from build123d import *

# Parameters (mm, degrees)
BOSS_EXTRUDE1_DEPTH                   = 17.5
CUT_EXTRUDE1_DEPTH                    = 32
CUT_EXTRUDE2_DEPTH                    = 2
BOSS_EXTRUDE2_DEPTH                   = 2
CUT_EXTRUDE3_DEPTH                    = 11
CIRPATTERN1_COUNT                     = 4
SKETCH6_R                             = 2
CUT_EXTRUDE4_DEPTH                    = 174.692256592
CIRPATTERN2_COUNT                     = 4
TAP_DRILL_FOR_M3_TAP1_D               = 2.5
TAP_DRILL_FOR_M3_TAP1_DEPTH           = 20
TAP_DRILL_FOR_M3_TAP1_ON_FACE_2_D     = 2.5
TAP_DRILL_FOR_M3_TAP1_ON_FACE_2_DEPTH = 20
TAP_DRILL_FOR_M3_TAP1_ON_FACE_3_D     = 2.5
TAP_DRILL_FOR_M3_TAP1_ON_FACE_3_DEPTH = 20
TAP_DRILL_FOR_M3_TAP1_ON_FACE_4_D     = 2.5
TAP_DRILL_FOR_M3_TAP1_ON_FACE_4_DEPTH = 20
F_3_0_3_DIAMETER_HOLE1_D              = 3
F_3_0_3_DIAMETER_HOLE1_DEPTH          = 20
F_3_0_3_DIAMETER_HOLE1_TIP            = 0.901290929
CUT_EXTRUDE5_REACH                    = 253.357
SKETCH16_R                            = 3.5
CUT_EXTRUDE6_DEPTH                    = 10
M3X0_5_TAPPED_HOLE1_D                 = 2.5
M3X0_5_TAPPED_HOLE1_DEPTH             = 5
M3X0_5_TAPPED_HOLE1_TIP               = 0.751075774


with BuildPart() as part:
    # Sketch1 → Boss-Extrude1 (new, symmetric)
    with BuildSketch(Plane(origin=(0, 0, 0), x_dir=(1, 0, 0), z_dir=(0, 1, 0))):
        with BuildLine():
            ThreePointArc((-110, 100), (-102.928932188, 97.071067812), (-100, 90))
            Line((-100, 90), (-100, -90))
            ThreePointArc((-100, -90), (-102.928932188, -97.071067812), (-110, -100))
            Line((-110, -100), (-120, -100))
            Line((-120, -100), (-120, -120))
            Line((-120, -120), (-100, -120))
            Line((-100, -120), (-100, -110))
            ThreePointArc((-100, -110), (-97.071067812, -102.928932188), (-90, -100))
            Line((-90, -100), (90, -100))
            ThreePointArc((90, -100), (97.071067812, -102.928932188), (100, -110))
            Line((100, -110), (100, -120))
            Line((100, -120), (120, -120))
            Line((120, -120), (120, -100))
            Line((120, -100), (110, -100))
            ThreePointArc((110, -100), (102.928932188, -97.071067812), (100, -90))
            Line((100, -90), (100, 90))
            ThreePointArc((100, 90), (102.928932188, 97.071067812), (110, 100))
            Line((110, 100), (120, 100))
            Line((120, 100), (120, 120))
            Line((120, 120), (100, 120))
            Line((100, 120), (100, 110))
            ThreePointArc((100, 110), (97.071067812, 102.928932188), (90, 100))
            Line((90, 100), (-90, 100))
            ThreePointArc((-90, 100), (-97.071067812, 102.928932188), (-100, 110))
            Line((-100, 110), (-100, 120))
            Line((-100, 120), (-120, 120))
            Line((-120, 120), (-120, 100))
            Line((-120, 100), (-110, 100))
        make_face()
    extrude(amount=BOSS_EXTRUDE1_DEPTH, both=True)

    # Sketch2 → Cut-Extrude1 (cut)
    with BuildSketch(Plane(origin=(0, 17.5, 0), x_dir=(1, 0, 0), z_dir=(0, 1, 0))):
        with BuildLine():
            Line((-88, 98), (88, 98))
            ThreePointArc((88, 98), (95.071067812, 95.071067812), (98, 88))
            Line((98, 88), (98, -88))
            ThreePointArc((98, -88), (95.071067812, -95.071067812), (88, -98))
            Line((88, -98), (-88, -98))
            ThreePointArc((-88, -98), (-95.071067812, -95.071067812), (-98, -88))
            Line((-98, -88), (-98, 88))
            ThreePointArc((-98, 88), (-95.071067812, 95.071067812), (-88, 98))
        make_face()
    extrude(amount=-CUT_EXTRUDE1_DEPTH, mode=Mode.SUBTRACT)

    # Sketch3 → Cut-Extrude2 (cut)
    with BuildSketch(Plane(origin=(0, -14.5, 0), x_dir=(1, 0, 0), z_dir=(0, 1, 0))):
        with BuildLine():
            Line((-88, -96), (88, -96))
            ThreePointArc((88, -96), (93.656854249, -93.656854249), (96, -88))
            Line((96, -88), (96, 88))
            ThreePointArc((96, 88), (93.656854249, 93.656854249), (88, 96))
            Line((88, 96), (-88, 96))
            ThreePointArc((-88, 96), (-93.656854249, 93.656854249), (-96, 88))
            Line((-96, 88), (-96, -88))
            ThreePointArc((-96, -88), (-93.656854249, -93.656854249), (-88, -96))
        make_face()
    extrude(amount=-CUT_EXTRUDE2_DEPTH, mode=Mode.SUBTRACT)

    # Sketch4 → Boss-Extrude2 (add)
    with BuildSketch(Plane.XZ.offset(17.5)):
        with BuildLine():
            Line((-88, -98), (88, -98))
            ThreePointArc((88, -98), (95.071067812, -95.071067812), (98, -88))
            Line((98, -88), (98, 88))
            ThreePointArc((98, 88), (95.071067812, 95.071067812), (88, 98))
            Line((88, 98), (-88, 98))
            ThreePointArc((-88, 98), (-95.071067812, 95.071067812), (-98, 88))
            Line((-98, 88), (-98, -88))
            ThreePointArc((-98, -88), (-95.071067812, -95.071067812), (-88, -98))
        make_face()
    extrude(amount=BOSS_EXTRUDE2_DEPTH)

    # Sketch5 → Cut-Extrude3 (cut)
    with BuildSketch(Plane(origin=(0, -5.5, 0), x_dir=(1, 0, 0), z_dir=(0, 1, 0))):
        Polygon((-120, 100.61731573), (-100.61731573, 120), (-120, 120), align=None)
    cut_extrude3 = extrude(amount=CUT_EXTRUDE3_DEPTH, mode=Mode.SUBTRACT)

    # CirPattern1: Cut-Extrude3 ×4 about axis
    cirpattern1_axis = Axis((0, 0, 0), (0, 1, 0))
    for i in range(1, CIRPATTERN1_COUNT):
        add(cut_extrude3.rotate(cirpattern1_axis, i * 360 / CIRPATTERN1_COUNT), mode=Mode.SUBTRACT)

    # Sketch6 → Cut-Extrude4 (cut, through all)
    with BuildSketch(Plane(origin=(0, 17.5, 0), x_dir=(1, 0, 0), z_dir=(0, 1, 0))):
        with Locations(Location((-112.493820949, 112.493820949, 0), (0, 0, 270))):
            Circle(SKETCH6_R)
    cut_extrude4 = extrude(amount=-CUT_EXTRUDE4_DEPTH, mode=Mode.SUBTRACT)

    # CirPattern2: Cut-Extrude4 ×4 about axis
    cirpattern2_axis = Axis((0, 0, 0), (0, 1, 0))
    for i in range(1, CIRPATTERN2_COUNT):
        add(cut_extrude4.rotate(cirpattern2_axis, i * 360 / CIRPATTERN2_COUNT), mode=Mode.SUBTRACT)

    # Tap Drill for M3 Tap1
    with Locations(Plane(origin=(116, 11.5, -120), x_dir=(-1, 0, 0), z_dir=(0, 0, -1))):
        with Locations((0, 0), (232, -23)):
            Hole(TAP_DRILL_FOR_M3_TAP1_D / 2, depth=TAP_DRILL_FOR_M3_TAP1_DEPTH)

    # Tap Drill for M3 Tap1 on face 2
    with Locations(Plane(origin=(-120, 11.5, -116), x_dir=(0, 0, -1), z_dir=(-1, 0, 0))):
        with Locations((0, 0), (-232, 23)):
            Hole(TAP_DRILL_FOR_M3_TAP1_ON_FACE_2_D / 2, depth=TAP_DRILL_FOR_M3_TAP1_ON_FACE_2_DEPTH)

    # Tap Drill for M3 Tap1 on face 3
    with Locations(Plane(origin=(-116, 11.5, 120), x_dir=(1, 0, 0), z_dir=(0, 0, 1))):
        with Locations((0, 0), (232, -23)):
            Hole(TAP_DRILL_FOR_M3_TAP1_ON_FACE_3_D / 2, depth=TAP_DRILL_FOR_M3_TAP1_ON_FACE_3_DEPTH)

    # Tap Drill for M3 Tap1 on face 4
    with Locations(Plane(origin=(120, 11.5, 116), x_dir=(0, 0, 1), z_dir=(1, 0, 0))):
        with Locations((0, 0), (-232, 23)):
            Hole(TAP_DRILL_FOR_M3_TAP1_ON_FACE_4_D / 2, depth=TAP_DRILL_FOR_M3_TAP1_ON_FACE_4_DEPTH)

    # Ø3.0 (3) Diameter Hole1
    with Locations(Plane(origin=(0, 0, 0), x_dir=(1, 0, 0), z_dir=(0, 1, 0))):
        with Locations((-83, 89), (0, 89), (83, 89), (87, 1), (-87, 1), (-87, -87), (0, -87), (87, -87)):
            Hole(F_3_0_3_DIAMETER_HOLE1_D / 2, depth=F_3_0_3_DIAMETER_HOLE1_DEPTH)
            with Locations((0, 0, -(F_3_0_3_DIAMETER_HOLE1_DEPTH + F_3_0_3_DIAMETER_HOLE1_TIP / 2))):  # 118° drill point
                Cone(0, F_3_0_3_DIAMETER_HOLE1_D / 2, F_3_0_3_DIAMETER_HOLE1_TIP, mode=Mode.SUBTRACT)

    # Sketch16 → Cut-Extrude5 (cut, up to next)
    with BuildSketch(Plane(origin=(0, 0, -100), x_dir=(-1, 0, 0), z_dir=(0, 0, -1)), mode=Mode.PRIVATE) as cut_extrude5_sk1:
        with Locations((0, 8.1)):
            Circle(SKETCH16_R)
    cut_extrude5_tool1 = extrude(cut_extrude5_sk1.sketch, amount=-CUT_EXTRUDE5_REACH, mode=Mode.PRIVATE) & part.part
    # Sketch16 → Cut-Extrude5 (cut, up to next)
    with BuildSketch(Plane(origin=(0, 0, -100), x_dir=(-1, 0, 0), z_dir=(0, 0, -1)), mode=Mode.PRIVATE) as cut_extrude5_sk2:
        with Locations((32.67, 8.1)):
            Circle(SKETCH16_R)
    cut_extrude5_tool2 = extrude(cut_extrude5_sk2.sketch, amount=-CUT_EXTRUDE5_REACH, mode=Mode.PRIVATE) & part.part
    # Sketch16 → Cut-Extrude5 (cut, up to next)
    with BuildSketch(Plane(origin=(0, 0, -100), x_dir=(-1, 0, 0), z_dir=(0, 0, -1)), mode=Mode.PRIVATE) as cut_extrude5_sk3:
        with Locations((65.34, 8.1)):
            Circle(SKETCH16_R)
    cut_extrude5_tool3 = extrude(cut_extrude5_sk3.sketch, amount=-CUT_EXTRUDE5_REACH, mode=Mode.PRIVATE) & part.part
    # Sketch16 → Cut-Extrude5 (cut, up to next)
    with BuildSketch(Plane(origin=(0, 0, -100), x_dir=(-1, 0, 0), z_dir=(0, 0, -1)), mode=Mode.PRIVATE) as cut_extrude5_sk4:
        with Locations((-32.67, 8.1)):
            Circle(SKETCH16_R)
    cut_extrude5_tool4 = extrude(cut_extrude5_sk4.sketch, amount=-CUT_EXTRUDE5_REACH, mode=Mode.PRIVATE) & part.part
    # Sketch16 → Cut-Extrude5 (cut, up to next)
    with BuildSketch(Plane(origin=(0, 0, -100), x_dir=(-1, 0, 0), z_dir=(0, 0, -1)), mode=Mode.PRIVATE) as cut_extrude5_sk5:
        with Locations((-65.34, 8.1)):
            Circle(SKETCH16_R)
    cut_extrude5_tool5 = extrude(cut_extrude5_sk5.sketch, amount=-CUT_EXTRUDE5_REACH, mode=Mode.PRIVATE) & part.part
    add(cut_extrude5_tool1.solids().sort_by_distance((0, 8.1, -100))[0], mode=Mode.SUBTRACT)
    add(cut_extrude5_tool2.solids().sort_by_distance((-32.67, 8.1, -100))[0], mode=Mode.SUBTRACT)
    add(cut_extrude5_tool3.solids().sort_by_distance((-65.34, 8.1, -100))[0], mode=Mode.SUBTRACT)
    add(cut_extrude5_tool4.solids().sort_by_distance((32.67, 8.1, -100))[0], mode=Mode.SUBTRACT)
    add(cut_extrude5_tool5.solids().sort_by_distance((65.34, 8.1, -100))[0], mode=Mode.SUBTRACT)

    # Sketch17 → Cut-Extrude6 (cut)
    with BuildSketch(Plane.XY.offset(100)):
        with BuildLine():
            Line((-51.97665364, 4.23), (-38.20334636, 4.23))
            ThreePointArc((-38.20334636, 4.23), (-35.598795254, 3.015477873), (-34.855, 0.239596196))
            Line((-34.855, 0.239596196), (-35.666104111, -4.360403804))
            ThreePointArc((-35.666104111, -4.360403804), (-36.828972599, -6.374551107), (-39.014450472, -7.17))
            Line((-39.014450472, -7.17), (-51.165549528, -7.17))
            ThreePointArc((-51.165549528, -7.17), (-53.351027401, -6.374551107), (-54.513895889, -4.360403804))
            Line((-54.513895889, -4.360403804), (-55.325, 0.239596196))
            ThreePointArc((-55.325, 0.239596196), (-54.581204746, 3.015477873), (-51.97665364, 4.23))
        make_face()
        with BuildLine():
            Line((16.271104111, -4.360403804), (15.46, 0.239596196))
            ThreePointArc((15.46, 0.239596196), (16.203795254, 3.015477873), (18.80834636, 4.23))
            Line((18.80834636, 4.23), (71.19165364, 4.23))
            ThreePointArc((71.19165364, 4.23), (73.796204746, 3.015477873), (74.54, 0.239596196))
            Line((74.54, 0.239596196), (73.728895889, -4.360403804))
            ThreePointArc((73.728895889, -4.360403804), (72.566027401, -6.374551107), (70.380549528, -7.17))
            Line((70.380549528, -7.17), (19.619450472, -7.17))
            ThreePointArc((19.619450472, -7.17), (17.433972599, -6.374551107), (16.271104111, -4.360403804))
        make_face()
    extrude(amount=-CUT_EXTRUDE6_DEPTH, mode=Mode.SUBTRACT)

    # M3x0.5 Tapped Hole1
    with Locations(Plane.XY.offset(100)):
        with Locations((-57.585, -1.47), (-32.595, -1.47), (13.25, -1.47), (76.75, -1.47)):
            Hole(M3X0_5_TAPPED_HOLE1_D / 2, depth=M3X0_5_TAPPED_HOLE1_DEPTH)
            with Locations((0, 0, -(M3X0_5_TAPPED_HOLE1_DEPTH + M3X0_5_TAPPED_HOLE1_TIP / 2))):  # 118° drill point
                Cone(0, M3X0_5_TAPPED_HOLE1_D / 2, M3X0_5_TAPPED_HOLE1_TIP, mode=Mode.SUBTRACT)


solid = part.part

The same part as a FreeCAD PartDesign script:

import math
import FreeCAD as App
import Part
import Sketcher
from FreeCAD import Vector
Q = App.Units.Quantity

doc = App.newDocument("Part")
body = doc.addObject("PartDesign::Body", "Body")

# Sketch on XZ plane
sketch1 = doc.addObject("Sketcher::SketchObject", "Sketch")
body.addObject(sketch1)
sketch1.AttachmentSupport = (doc.XZ_Plane, [""])
sketch1.MapMode = "FlatFace"
sketch1.addGeometry(Part.ArcOfCircle(Part.Circle(Vector(-110, -90, 0), Vector(0, 0, 1), 10), math.radians(-90), math.radians(0)), False)
sketch1.addGeometry(Part.LineSegment(Vector(-100, -90, 0), Vector(-100, 90, 0)), False)
sketch1.addGeometry(Part.ArcOfCircle(Part.Circle(Vector(-110, 90, 0), Vector(0, 0, 1), 10), math.radians(0), math.radians(90)), False)
sketch1.addGeometry(Part.LineSegment(Vector(-110, 100, 0), Vector(-120, 100, 0)), False)
sketch1.addGeometry(Part.LineSegment(Vector(-120, 100, 0), Vector(-120, 120, 0)), False)
sketch1.addGeometry(Part.LineSegment(Vector(-120, 120, 0), Vector(-100, 120, 0)), False)
sketch1.addGeometry(Part.LineSegment(Vector(-100, 120, 0), Vector(-100, 110, 0)), False)
sketch1.addGeometry(Part.ArcOfCircle(Part.Circle(Vector(-90, 110, 0), Vector(0, 0, 1), 10), math.radians(180), math.radians(270)), False)
sketch1.addGeometry(Part.LineSegment(Vector(-90, 100, 0), Vector(90, 100, 0)), False)
sketch1.addGeometry(Part.ArcOfCircle(Part.Circle(Vector(90, 110, 0), Vector(0, 0, 1), 10), math.radians(-90), math.radians(0)), False)
sketch1.addGeometry(Part.LineSegment(Vector(100, 110, 0), Vector(100, 120, 0)), False)
sketch1.addGeometry(Part.LineSegment(Vector(100, 120, 0), Vector(120, 120, 0)), False)
sketch1.addGeometry(Part.LineSegment(Vector(120, 120, 0), Vector(120, 100, 0)), False)
sketch1.addGeometry(Part.LineSegment(Vector(120, 100, 0), Vector(110, 100, 0)), False)
sketch1.addGeometry(Part.ArcOfCircle(Part.Circle(Vector(110, 90, 0), Vector(0, 0, 1), 10), math.radians(90), math.radians(180)), False)
sketch1.addGeometry(Part.LineSegment(Vector(100, 90, 0), Vector(100, -90, 0)), False)
sketch1.addGeometry(Part.ArcOfCircle(Part.Circle(Vector(110, -90, 0), Vector(0, 0, 1), 10), math.radians(180), math.radians(270)), False)
sketch1.addGeometry(Part.LineSegment(Vector(110, -100, 0), Vector(120, -100, 0)), False)
sketch1.addGeometry(Part.LineSegment(Vector(120, -100, 0), Vector(120, -120, 0)), False)
sketch1.addGeometry(Part.LineSegment(Vector(120, -120, 0), Vector(100, -120, 0)), False)
sketch1.addGeometry(Part.LineSegment(Vector(100, -120, 0), Vector(100, -110, 0)), False)
sketch1.addGeometry(Part.ArcOfCircle(Part.Circle(Vector(90, -110, 0), Vector(0, 0, 1), 10), math.radians(0), math.radians(90)), False)
sketch1.addGeometry(Part.LineSegment(Vector(90, -100, 0), Vector(-90, -100, 0)), False)
sketch1.addGeometry(Part.ArcOfCircle(Part.Circle(Vector(-90, -110, 0), Vector(0, 0, 1), 10), math.radians(90), math.radians(180)), False)
sketch1.addGeometry(Part.LineSegment(Vector(-100, -110, 0), Vector(-100, -120, 0)), False)
sketch1.addGeometry(Part.LineSegment(Vector(-100, -120, 0), Vector(-120, -120, 0)), False)
sketch1.addGeometry(Part.LineSegment(Vector(-120, -120, 0), Vector(-120, -100, 0)), False)
sketch1.addGeometry(Part.LineSegment(Vector(-120, -100, 0), Vector(-110, -100, 0)), False)
sketch1.addConstraint(Sketcher.Constraint("Tangent", 0, 2, 1, 1))
sketch1.addConstraint(Sketcher.Constraint("Tangent", 1, 2, 2, 1))
sketch1.addConstraint(Sketcher.Constraint("Tangent", 2, 2, 3, 1))
sketch1.addConstraint(Sketcher.Constraint("Coincident", 3, 2, 4, 1))
sketch1.addConstraint(Sketcher.Constraint("Coincident", 4, 2, 5, 1))
sketch1.addConstraint(Sketcher.Constraint("Coincident", 5, 2, 6, 1))
sketch1.addConstraint(Sketcher.Constraint("Tangent", 6, 2, 7, 1))
sketch1.addConstraint(Sketcher.Constraint("Tangent", 7, 2, 8, 1))
sketch1.addConstraint(Sketcher.Constraint("Tangent", 8, 2, 9, 1))
sketch1.addConstraint(Sketcher.Constraint("Tangent", 9, 2, 10, 1))
sketch1.addConstraint(Sketcher.Constraint("Coincident", 10, 2, 11, 1))
sketch1.addConstraint(Sketcher.Constraint("Coincident", 11, 2, 12, 1))
sketch1.addConstraint(Sketcher.Constraint("Coincident", 12, 2, 13, 1))
sketch1.addConstraint(Sketcher.Constraint("Tangent", 13, 2, 14, 1))
sketch1.addConstraint(Sketcher.Constraint("Tangent", 14, 2, 15, 1))
sketch1.addConstraint(Sketcher.Constraint("Tangent", 15, 2, 16, 1))
sketch1.addConstraint(Sketcher.Constraint("Tangent", 16, 2, 17, 1))
sketch1.addConstraint(Sketcher.Constraint("Coincident", 17, 2, 18, 1))
sketch1.addConstraint(Sketcher.Constraint("Coincident", 18, 2, 19, 1))
sketch1.addConstraint(Sketcher.Constraint("Coincident", 19, 2, 20, 1))
sketch1.addConstraint(Sketcher.Constraint("Tangent", 20, 2, 21, 1))
sketch1.addConstraint(Sketcher.Constraint("Tangent", 21, 2, 22, 1))
sketch1.addConstraint(Sketcher.Constraint("Tangent", 22, 2, 23, 1))
sketch1.addConstraint(Sketcher.Constraint("Tangent", 23, 2, 24, 1))
sketch1.addConstraint(Sketcher.Constraint("Coincident", 24, 2, 25, 1))
sketch1.addConstraint(Sketcher.Constraint("Coincident", 25, 2, 26, 1))
sketch1.addConstraint(Sketcher.Constraint("Coincident", 26, 2, 27, 1))
sketch1.addConstraint(Sketcher.Constraint("Tangent", 27, 2, 0, 1))
sketch1.addConstraint(Sketcher.Constraint("Vertical", 1))
sketch1.addConstraint(Sketcher.Constraint("Horizontal", 3))
sketch1.addConstraint(Sketcher.Constraint("Vertical", 4))
sketch1.addConstraint(Sketcher.Constraint("Horizontal", 5))
sketch1.addConstraint(Sketcher.Constraint("Vertical", 6))
sketch1.addConstraint(Sketcher.Constraint("Horizontal", 8))
sketch1.addConstraint(Sketcher.Constraint("Vertical", 10))
sketch1.addConstraint(Sketcher.Constraint("Horizontal", 11))
sketch1.addConstraint(Sketcher.Constraint("Vertical", 12))
sketch1.addConstraint(Sketcher.Constraint("Horizontal", 13))
sketch1.addConstraint(Sketcher.Constraint("Vertical", 15))
sketch1.addConstraint(Sketcher.Constraint("Horizontal", 17))
sketch1.addConstraint(Sketcher.Constraint("Vertical", 18))
sketch1.addConstraint(Sketcher.Constraint("Horizontal", 19))
sketch1.addConstraint(Sketcher.Constraint("Vertical", 20))
sketch1.addConstraint(Sketcher.Constraint("Horizontal", 22))
sketch1.addConstraint(Sketcher.Constraint("Vertical", 24))
sketch1.addConstraint(Sketcher.Constraint("Horizontal", 25))
sketch1.addConstraint(Sketcher.Constraint("Vertical", 26))
sketch1.addConstraint(Sketcher.Constraint("Horizontal", 27))
sketch1.addConstraint(Sketcher.Constraint("Equal", 0, 2))
sketch1.addConstraint(Sketcher.Constraint("Equal", 2, 7))
sketch1.addConstraint(Sketcher.Constraint("Equal", 7, 9))
sketch1.addConstraint(Sketcher.Constraint("Equal", 9, 14))
sketch1.addConstraint(Sketcher.Constraint("Equal", 14, 16))
sketch1.addConstraint(Sketcher.Constraint("Equal", 16, 21))
sketch1.addConstraint(Sketcher.Constraint("Equal", 21, 23))
sketch1.addConstraint(Sketcher.Constraint("Symmetric", 0, 3, 14, 3, -1, 1))
sketch1.addConstraint(Sketcher.Constraint("Symmetric", 7, 3, 21, 3, -1, 1))
sketch1.addConstraint(Sketcher.Constraint("Symmetric", 3, 2, 17, 2, -1, 1))
sketch1.addConstraint(Sketcher.Constraint("Symmetric", 10, 2, 24, 2, -1, 1))
sketch1.addConstraint(Sketcher.Constraint("Symmetric", 5, 2, 10, 2, -2))
sketch1.addConstraint(Sketcher.Constraint("Symmetric", 3, 2, 12, 2, -2))
sketch1.addConstraint(Sketcher.Constraint("Symmetric", 18, 2, 25, 2, -2))
sketch1.addConstraint(Sketcher.Constraint("Horizontal", 3, 2, 7, 2))
sketch1.addConstraint(Sketcher.Constraint("Vertical", 1, 2, 5, 2))
sketch1.addConstraint(Sketcher.Constraint("Equal", 22, 1))
sketch1.addConstraint(Sketcher.Constraint("Equal", 25, 4))
sketch1.addConstraint(Sketcher.Constraint("Radius", 0, 10.0))
sketch1.addConstraint(Sketcher.Constraint("DistanceX", 3, 2, 3, 1, 10.0))
sketch1.addConstraint(Sketcher.Constraint("DistanceX", 8, 1, 8, 2, 180.0))
pad1 = doc.addObject("PartDesign::Pad", "Pad")
body.addObject(pad1)
pad1.Profile = sketch1
pad1.Length = 35
pad1.Midplane = True

# Sketch on XZ plane
sketch2 = doc.addObject("Sketcher::SketchObject", "Sketch001")
body.addObject(sketch2)
sketch2.AttachmentSupport = (doc.XZ_Plane, [""])
sketch2.MapMode = "FlatFace"
sketch2.AttachmentOffset = App.Placement(Vector(0, 0, -17.5), App.Rotation())
sketch2.addGeometry(Part.LineSegment(Vector(88, -98, 0), Vector(-88, -98, 0)), False)
sketch2.addGeometry(Part.ArcOfCircle(Part.Circle(Vector(-88, -88, 0), Vector(0, 0, 1), 10), math.radians(180), math.radians(270)), False)
sketch2.addGeometry(Part.LineSegment(Vector(-98, -88, 0), Vector(-98, 88, 0)), False)
sketch2.addGeometry(Part.ArcOfCircle(Part.Circle(Vector(-88, 88, 0), Vector(0, 0, 1), 10), math.radians(90), math.radians(180)), False)
sketch2.addGeometry(Part.LineSegment(Vector(-88, 98, 0), Vector(88, 98, 0)), False)
sketch2.addGeometry(Part.ArcOfCircle(Part.Circle(Vector(88, 88, 0), Vector(0, 0, 1), 10), math.radians(0), math.radians(90)), False)
sketch2.addGeometry(Part.LineSegment(Vector(98, 88, 0), Vector(98, -88, 0)), False)
sketch2.addGeometry(Part.ArcOfCircle(Part.Circle(Vector(88, -88, 0), Vector(0, 0, 1), 10), math.radians(-90), math.radians(0)), False)
sketch2.addConstraint(Sketcher.Constraint("Tangent", 0, 2, 1, 2))
sketch2.addConstraint(Sketcher.Constraint("Tangent", 1, 1, 2, 1))
sketch2.addConstraint(Sketcher.Constraint("Tangent", 2, 2, 3, 2))
sketch2.addConstraint(Sketcher.Constraint("Tangent", 3, 1, 4, 1))
sketch2.addConstraint(Sketcher.Constraint("Tangent", 4, 2, 5, 2))
sketch2.addConstraint(Sketcher.Constraint("Tangent", 5, 1, 6, 1))
sketch2.addConstraint(Sketcher.Constraint("Tangent", 6, 2, 7, 2))
sketch2.addConstraint(Sketcher.Constraint("Tangent", 7, 1, 0, 1))
sketch2.addConstraint(Sketcher.Constraint("Horizontal", 0))
sketch2.addConstraint(Sketcher.Constraint("Vertical", 2))
sketch2.addConstraint(Sketcher.Constraint("Horizontal", 4))
sketch2.addConstraint(Sketcher.Constraint("Vertical", 6))
sketch2.addConstraint(Sketcher.Constraint("Equal", 1, 3))
sketch2.addConstraint(Sketcher.Constraint("Equal", 3, 5))
sketch2.addConstraint(Sketcher.Constraint("Equal", 5, 7))
sketch2.addConstraint(Sketcher.Constraint("Symmetric", 1, 3, 5, 3, -1, 1))
sketch2.addConstraint(Sketcher.Constraint("Equal", 4, 2))
sketch2.addConstraint(Sketcher.Constraint("Radius", 1, 10.0))
sketch2.addConstraint(Sketcher.Constraint("DistanceX", 0, 2, 0, 1, 176.0))
pocket1 = doc.addObject("PartDesign::Pocket", "Pocket")
body.addObject(pocket1)
pocket1.Profile = sketch2
pocket1.Length = 32
pocket1.Reversed = True

# Sketch on XZ plane
sketch3 = doc.addObject("Sketcher::SketchObject", "Sketch002")
body.addObject(sketch3)
sketch3.AttachmentSupport = (doc.XZ_Plane, [""])
sketch3.MapMode = "FlatFace"
sketch3.AttachmentOffset = App.Placement(Vector(0, 0, 14.5), App.Rotation())
sketch3.addGeometry(Part.LineSegment(Vector(-88, 96, 0), Vector(88, 96, 0)), False)
sketch3.addGeometry(Part.ArcOfCircle(Part.Circle(Vector(88, 88, 0), Vector(0, 0, 1), 8), math.radians(0), math.radians(90)), False)
sketch3.addGeometry(Part.LineSegment(Vector(96, 88, 0), Vector(96, -88, 0)), False)
sketch3.addGeometry(Part.ArcOfCircle(Part.Circle(Vector(88, -88, 0), Vector(0, 0, 1), 8), math.radians(-90), math.radians(0)), False)
sketch3.addGeometry(Part.LineSegment(Vector(88, -96, 0), Vector(-88, -96, 0)), False)
sketch3.addGeometry(Part.ArcOfCircle(Part.Circle(Vector(-88, -88, 0), Vector(0, 0, 1), 8), math.radians(-180), math.radians(-90)), False)
sketch3.addGeometry(Part.LineSegment(Vector(-96, -88, 0), Vector(-96, 88, 0)), False)
sketch3.addGeometry(Part.ArcOfCircle(Part.Circle(Vector(-88, 88, 0), Vector(0, 0, 1), 8), math.radians(90), math.radians(180)), False)
sketch3.addConstraint(Sketcher.Constraint("Tangent", 0, 2, 1, 2))
sketch3.addConstraint(Sketcher.Constraint("Tangent", 1, 1, 2, 1))
sketch3.addConstraint(Sketcher.Constraint("Tangent", 2, 2, 3, 2))
sketch3.addConstraint(Sketcher.Constraint("Tangent", 3, 1, 4, 1))
sketch3.addConstraint(Sketcher.Constraint("Tangent", 4, 2, 5, 2))
sketch3.addConstraint(Sketcher.Constraint("Tangent", 5, 1, 6, 1))
sketch3.addConstraint(Sketcher.Constraint("Tangent", 6, 2, 7, 2))
sketch3.addConstraint(Sketcher.Constraint("Tangent", 7, 1, 0, 1))
sketch3.addConstraint(Sketcher.Constraint("Horizontal", 0))
sketch3.addConstraint(Sketcher.Constraint("Vertical", 2))
sketch3.addConstraint(Sketcher.Constraint("Horizontal", 4))
sketch3.addConstraint(Sketcher.Constraint("Vertical", 6))
sketch3.addConstraint(Sketcher.Constraint("Equal", 1, 3))
sketch3.addConstraint(Sketcher.Constraint("Equal", 3, 5))
sketch3.addConstraint(Sketcher.Constraint("Equal", 5, 7))
sketch3.addConstraint(Sketcher.Constraint("Symmetric", 1, 3, 5, 3, -1, 1))
sketch3.addConstraint(Sketcher.Constraint("Equal", 4, 2))
sketch3.addConstraint(Sketcher.Constraint("Radius", 1, 8.0))
sketch3.addConstraint(Sketcher.Constraint("DistanceX", 0, 1, 0, 2, 176.0))
pocket2 = doc.addObject("PartDesign::Pocket", "Pocket001")
body.addObject(pocket2)
pocket2.Profile = sketch3
pocket2.Length = 2
pocket2.Reversed = True

# Sketch on XZ plane
sketch4 = doc.addObject("Sketcher::SketchObject", "Sketch003")
body.addObject(sketch4)
sketch4.AttachmentSupport = (doc.XZ_Plane, [""])
sketch4.MapMode = "FlatFace"
sketch4.AttachmentOffset = App.Placement(Vector(0, 0, 17.5), App.Rotation())
sketch4.addGeometry(Part.LineSegment(Vector(-88, -98, 0), Vector(88, -98, 0)), False)
sketch4.addGeometry(Part.ArcOfCircle(Part.Circle(Vector(88, -88, 0), Vector(0, 0, 1), 10), math.radians(-90), math.radians(0)), False)
sketch4.addGeometry(Part.LineSegment(Vector(98, -88, 0), Vector(98, 88, 0)), False)
sketch4.addGeometry(Part.ArcOfCircle(Part.Circle(Vector(88, 88, 0), Vector(0, 0, 1), 10), math.radians(0), math.radians(90)), False)
sketch4.addGeometry(Part.LineSegment(Vector(88, 98, 0), Vector(-88, 98, 0)), False)
sketch4.addGeometry(Part.ArcOfCircle(Part.Circle(Vector(-88, 88, 0), Vector(0, 0, 1), 10), math.radians(90), math.radians(180)), False)
sketch4.addGeometry(Part.LineSegment(Vector(-98, 88, 0), Vector(-98, -88, 0)), False)
sketch4.addGeometry(Part.ArcOfCircle(Part.Circle(Vector(-88, -88, 0), Vector(0, 0, 1), 10), math.radians(180), math.radians(270)), False)
sketch4.addConstraint(Sketcher.Constraint("Tangent", 0, 2, 1, 1))
sketch4.addConstraint(Sketcher.Constraint("Tangent", 1, 2, 2, 1))
sketch4.addConstraint(Sketcher.Constraint("Tangent", 2, 2, 3, 1))
sketch4.addConstraint(Sketcher.Constraint("Tangent", 3, 2, 4, 1))
sketch4.addConstraint(Sketcher.Constraint("Tangent", 4, 2, 5, 1))
sketch4.addConstraint(Sketcher.Constraint("Tangent", 5, 2, 6, 1))
sketch4.addConstraint(Sketcher.Constraint("Tangent", 6, 2, 7, 1))
sketch4.addConstraint(Sketcher.Constraint("Tangent", 7, 2, 0, 1))
sketch4.addConstraint(Sketcher.Constraint("Horizontal", 0))
sketch4.addConstraint(Sketcher.Constraint("Vertical", 2))
sketch4.addConstraint(Sketcher.Constraint("Horizontal", 4))
sketch4.addConstraint(Sketcher.Constraint("Vertical", 6))
sketch4.addConstraint(Sketcher.Constraint("Equal", 1, 3))
sketch4.addConstraint(Sketcher.Constraint("Equal", 3, 5))
sketch4.addConstraint(Sketcher.Constraint("Equal", 5, 7))
sketch4.addConstraint(Sketcher.Constraint("Symmetric", 1, 3, 5, 3, -1, 1))
sketch4.addConstraint(Sketcher.Constraint("Equal", 4, 2))
sketch4.addConstraint(Sketcher.Constraint("Radius", 1, 10.0))
sketch4.addConstraint(Sketcher.Constraint("DistanceX", 0, 1, 0, 2, 176.0))
pad2 = doc.addObject("PartDesign::Pad", "Pad001")
body.addObject(pad2)
pad2.Profile = sketch4
pad2.Length = 2

# Sketch on XZ plane
sketch5 = doc.addObject("Sketcher::SketchObject", "Sketch004")
body.addObject(sketch5)
sketch5.AttachmentSupport = (doc.XZ_Plane, [""])
sketch5.MapMode = "FlatFace"
sketch5.AttachmentOffset = App.Placement(Vector(0, 0, 5.5), App.Rotation())
sketch5.addGeometry(Part.LineSegment(Vector(-120, -101, 0), Vector(-101, -120, 0)), False)
sketch5.addGeometry(Part.LineSegment(Vector(-101, -120, 0), Vector(-120, -120, 0)), False)
sketch5.addGeometry(Part.LineSegment(Vector(-120, -120, 0), Vector(-120, -101, 0)), False)
sketch5.addConstraint(Sketcher.Constraint("Coincident", 0, 2, 1, 1))
sketch5.addConstraint(Sketcher.Constraint("Coincident", 1, 2, 2, 1))
sketch5.addConstraint(Sketcher.Constraint("Coincident", 2, 2, 0, 1))
sketch5.addConstraint(Sketcher.Constraint("Horizontal", 1))
sketch5.addConstraint(Sketcher.Constraint("Vertical", 2))
sketch5.addConstraint(Sketcher.Constraint("Equal", 1, 2))
sketch5.addConstraint(Sketcher.Constraint("DistanceY", 0, 2, -1, 1, 120.0))
sketch5.addConstraint(Sketcher.Constraint("DistanceX", 1, 2, -1, 1, 120.0))
sketch5.addConstraint(Sketcher.Constraint("DistanceX", 1, 2, 1, 1, 19.382684))
pocket3 = doc.addObject("PartDesign::Pocket", "Pocket002")
body.addObject(pocket3)
pocket3.Profile = sketch5
pocket3.Length = 11
doc.recompute()

polarpattern = doc.addObject("PartDesign::PolarPattern", "PolarPattern")
body.addObject(polarpattern)
polarpattern.Originals = [pocket3]
polarpattern.Axis = (doc.Y_Axis, [""])
polarpattern.Angle = 360
polarpattern.Occurrences = 4
body.Tip = polarpattern

# Sketch on XZ plane
sketch6 = doc.addObject("Sketcher::SketchObject", "Sketch005")
body.addObject(sketch6)
sketch6.AttachmentSupport = (doc.XZ_Plane, [""])
sketch6.MapMode = "FlatFace"
sketch6.AttachmentOffset = App.Placement(Vector(0, 0, -17.5), App.Rotation())
sketch6.addGeometry(Part.Circle(Vector(-112.5, -112.5, 0), Vector(0, 0, 1), 2), False)
sketch6.addConstraint(Sketcher.Constraint("Diameter", 0, 4.0))
sketch6.addConstraint(Sketcher.Constraint("DistanceX", 0, 3, -1, 1, 112.493821))
sketch6.addConstraint(Sketcher.Constraint("DistanceY", 0, 3, -1, 1, 112.493821))
pocket4 = doc.addObject("PartDesign::Pocket", "Pocket003")
body.addObject(pocket4)
pocket4.Profile = sketch6
pocket4.Type = "ThroughAll"
pocket4.Reversed = True
doc.recompute()

polarpattern2 = doc.addObject("PartDesign::PolarPattern", "PolarPattern001")
body.addObject(polarpattern2)
polarpattern2.Originals = [pocket4]
polarpattern2.Axis = (doc.Y_Axis, [""])
polarpattern2.Angle = 360
polarpattern2.Occurrences = 4
body.Tip = polarpattern2

# Sketch on XY plane
sketch7 = doc.addObject("Sketcher::SketchObject", "Sketch006")
body.addObject(sketch7)
sketch7.AttachmentSupport = (doc.XY_Plane, [""])
sketch7.MapMode = "FlatFace"
sketch7.AttachmentOffset = App.Placement(Vector(0, 0, -120), App.Rotation())
sketch7.addGeometry(Part.Circle(Vector(116, 11.5, 0), Vector(0, 0, 1), 1.2), False)
sketch7.addGeometry(Part.Circle(Vector(-116, -11.5, 0), Vector(0, 0, 1), 1.2), False)
sketch7.addConstraint(Sketcher.Constraint("Equal", 0, 1))
sketch7.addConstraint(Sketcher.Constraint("Symmetric", 0, 3, 1, 3, -1, 1))
sketch7.addConstraint(Sketcher.Constraint("Diameter", 0, 2.5))
sketch7.addConstraint(Sketcher.Constraint("DistanceX", -1, 1, 0, 3, 116.0))
sketch7.addConstraint(Sketcher.Constraint("DistanceY", 1, 3, 0, 3, 23.0))
doc.recompute()
hole = doc.addObject("PartDesign::Hole", "Hole")
body.addObject(hole)
hole.Profile = sketch7
hole.ThreadType = "None"
hole.Diameter = 2.5
hole.DepthType = "Dimension"
hole.Depth = 20
hole.DrillPoint = "Flat"
hole.Reversed = True

# Sketch on YZ plane
sketch8 = doc.addObject("Sketcher::SketchObject", "Sketch007")
body.addObject(sketch8)
sketch8.AttachmentSupport = (doc.YZ_Plane, [""])
sketch8.MapMode = "FlatFace"
sketch8.AttachmentOffset = App.Placement(Vector(0, 0, -120), App.Rotation())
sketch8.addGeometry(Part.Circle(Vector(11.5, -116, 0), Vector(0, 0, 1), 1.2), False)
sketch8.addGeometry(Part.Circle(Vector(-11.5, 116, 0), Vector(0, 0, 1), 1.2), False)
sketch8.addConstraint(Sketcher.Constraint("Equal", 0, 1))
sketch8.addConstraint(Sketcher.Constraint("Symmetric", 0, 3, 1, 3, -1, 1))
sketch8.addConstraint(Sketcher.Constraint("Diameter", 0, 2.5))
sketch8.addConstraint(Sketcher.Constraint("DistanceY", 0, 3, -1, 1, 116.0))
sketch8.addConstraint(Sketcher.Constraint("DistanceX", 1, 3, 0, 3, 23.0))
doc.recompute()
hole2 = doc.addObject("PartDesign::Hole", "Hole001")
body.addObject(hole2)
hole2.Profile = sketch8
hole2.ThreadType = "None"
hole2.Diameter = 2.5
hole2.DepthType = "Dimension"
hole2.Depth = 20
hole2.DrillPoint = "Flat"
hole2.Reversed = True

# Sketch on XY plane
sketch9 = doc.addObject("Sketcher::SketchObject", "Sketch008")
body.addObject(sketch9)
sketch9.AttachmentSupport = (doc.XY_Plane, [""])
sketch9.MapMode = "FlatFace"
sketch9.AttachmentOffset = App.Placement(Vector(0, 0, 120), App.Rotation())
sketch9.addGeometry(Part.Circle(Vector(-116, 11.5, 0), Vector(0, 0, 1), 1.2), False)
sketch9.addGeometry(Part.Circle(Vector(116, -11.5, 0), Vector(0, 0, 1), 1.2), False)
sketch9.addConstraint(Sketcher.Constraint("Equal", 0, 1))
sketch9.addConstraint(Sketcher.Constraint("Symmetric", 0, 3, 1, 3, -1, 1))
sketch9.addConstraint(Sketcher.Constraint("Diameter", 0, 2.5))
sketch9.addConstraint(Sketcher.Constraint("DistanceX", 0, 3, -1, 1, 116.0))
sketch9.addConstraint(Sketcher.Constraint("DistanceY", 1, 3, 0, 3, 23.0))
doc.recompute()
hole3 = doc.addObject("PartDesign::Hole", "Hole002")
body.addObject(hole3)
hole3.Profile = sketch9
hole3.ThreadType = "None"
hole3.Diameter = 2.5
hole3.DepthType = "Dimension"
hole3.Depth = 20
hole3.DrillPoint = "Flat"

# Sketch on YZ plane
sketch10 = doc.addObject("Sketcher::SketchObject", "Sketch009")
body.addObject(sketch10)
sketch10.AttachmentSupport = (doc.YZ_Plane, [""])
sketch10.MapMode = "FlatFace"
sketch10.AttachmentOffset = App.Placement(Vector(0, 0, 120), App.Rotation())
sketch10.addGeometry(Part.Circle(Vector(11.5, 116, 0), Vector(0, 0, 1), 1.2), False)
sketch10.addGeometry(Part.Circle(Vector(-11.5, -116, 0), Vector(0, 0, 1), 1.2), False)
sketch10.addConstraint(Sketcher.Constraint("Equal", 0, 1))
sketch10.addConstraint(Sketcher.Constraint("Symmetric", 0, 3, 1, 3, -1, 1))
sketch10.addConstraint(Sketcher.Constraint("Diameter", 0, 2.5))
sketch10.addConstraint(Sketcher.Constraint("DistanceY", -1, 1, 0, 3, 116.0))
sketch10.addConstraint(Sketcher.Constraint("DistanceX", 1, 3, 0, 3, 23.0))
doc.recompute()
hole4 = doc.addObject("PartDesign::Hole", "Hole003")
body.addObject(hole4)
hole4.Profile = sketch10
hole4.ThreadType = "None"
hole4.Diameter = 2.5
hole4.DepthType = "Dimension"
hole4.Depth = 20
hole4.DrillPoint = "Flat"

# Sketch on XZ plane
sketch11 = doc.addObject("Sketcher::SketchObject", "Sketch010")
body.addObject(sketch11)
sketch11.AttachmentSupport = (doc.XZ_Plane, [""])
sketch11.MapMode = "FlatFace"
sketch11.addGeometry(Part.Circle(Vector(-83, -89, 0), Vector(0, 0, 1), 1.5), False)
sketch11.addGeometry(Part.Circle(Vector(0, -89, 0), Vector(0, 0, 1), 1.5), False)
sketch11.addGeometry(Part.Circle(Vector(83, -89, 0), Vector(0, 0, 1), 1.5), False)
sketch11.addGeometry(Part.Circle(Vector(87, -1, 0), Vector(0, 0, 1), 1.5), False)
sketch11.addGeometry(Part.Circle(Vector(-87, -1, 0), Vector(0, 0, 1), 1.5), False)
sketch11.addGeometry(Part.Circle(Vector(-87, 87, 0), Vector(0, 0, 1), 1.5), False)
sketch11.addGeometry(Part.Circle(Vector(0, 87, 0), Vector(0, 0, 1), 1.5), False)
sketch11.addGeometry(Part.Circle(Vector(87, 87, 0), Vector(0, 0, 1), 1.5), False)
sketch11.addConstraint(Sketcher.Constraint("Equal", 0, 1))
sketch11.addConstraint(Sketcher.Constraint("Equal", 1, 2))
sketch11.addConstraint(Sketcher.Constraint("Equal", 2, 3))
sketch11.addConstraint(Sketcher.Constraint("Equal", 3, 4))
sketch11.addConstraint(Sketcher.Constraint("Equal", 4, 5))
sketch11.addConstraint(Sketcher.Constraint("Equal", 5, 6))
sketch11.addConstraint(Sketcher.Constraint("Equal", 6, 7))
sketch11.addConstraint(Sketcher.Constraint("Symmetric", 0, 3, 2, 3, -2))
sketch11.addConstraint(Sketcher.Constraint("Symmetric", 3, 3, 4, 3, -2))
sketch11.addConstraint(Sketcher.Constraint("Symmetric", 5, 3, 7, 3, -2))
sketch11.addConstraint(Sketcher.Constraint("PointOnObject", 1, 3, -2))
sketch11.addConstraint(Sketcher.Constraint("PointOnObject", 6, 3, -2))
sketch11.addConstraint(Sketcher.Constraint("Horizontal", 0, 3, 1, 3))
sketch11.addConstraint(Sketcher.Constraint("Horizontal", 5, 3, 6, 3))
sketch11.addConstraint(Sketcher.Constraint("Vertical", 4, 3, 5, 3))
sketch11.addConstraint(Sketcher.Constraint("Diameter", 0, 3.0))
sketch11.addConstraint(Sketcher.Constraint("DistanceX", 0, 3, -1, 1, 83.0))
sketch11.addConstraint(Sketcher.Constraint("DistanceY", 0, 3, -1, 1, 89.0))
sketch11.addConstraint(Sketcher.Constraint("DistanceX", -1, 1, 3, 3, 87.0))
sketch11.addConstraint(Sketcher.Constraint("DistanceY", 3, 3, -1, 1, 1.0))
sketch11.addConstraint(Sketcher.Constraint("DistanceY", -1, 1, 5, 3, 87.0))
doc.recompute()
hole5 = doc.addObject("PartDesign::Hole", "Hole004")
body.addObject(hole5)
hole5.Profile = sketch11
hole5.ThreadType = "None"
hole5.Diameter = 3
hole5.DepthType = "Dimension"
hole5.Depth = 20
hole5.DrillPoint = "Angled"
hole5.DrillPointAngle = 118
hole5.Reversed = True

# Sketch on XY plane
sketch12 = doc.addObject("Sketcher::SketchObject", "Sketch011")
body.addObject(sketch12)
sketch12.AttachmentSupport = (doc.XY_Plane, [""])
sketch12.MapMode = "FlatFace"
sketch12.AttachmentOffset = App.Placement(Vector(0, 0, -100), App.Rotation())
sketch12.addGeometry(Part.Circle(Vector(0, 8.1, 0), Vector(0, 0, 1), 3.5), False)
sketch12.addConstraint(Sketcher.Constraint("PointOnObject", 0, 3, -2))
sketch12.addConstraint(Sketcher.Constraint("Diameter", 0, 7.0))
sketch12.addConstraint(Sketcher.Constraint("DistanceY", -1, 1, 0, 3, 8.1))
pocket5 = doc.addObject("PartDesign::Pocket", "Pocket004")
body.addObject(pocket5)
pocket5.Profile = sketch12
pocket5.Type = "UpToFirst"
pocket5.Reversed = True

# Sketch on XY plane
sketch13 = doc.addObject("Sketcher::SketchObject", "Sketch012")
body.addObject(sketch13)
sketch13.AttachmentSupport = (doc.XY_Plane, [""])
sketch13.MapMode = "FlatFace"
sketch13.AttachmentOffset = App.Placement(Vector(0, 0, -100), App.Rotation())
sketch13.addGeometry(Part.Circle(Vector(-32.7, 8.1, 0), Vector(0, 0, 1), 3.5), False)
sketch13.addConstraint(Sketcher.Constraint("Diameter", 0, 7.0))
sketch13.addConstraint(Sketcher.Constraint("DistanceY", -1, 1, 0, 3, 8.1))
sketch13.addConstraint(Sketcher.Constraint("DistanceX", 0, 3, -1, 1, 32.67))
pocket6 = doc.addObject("PartDesign::Pocket", "Pocket005")
body.addObject(pocket6)
pocket6.Profile = sketch13
pocket6.Type = "UpToFirst"
pocket6.Reversed = True

# Sketch on XY plane
sketch14 = doc.addObject("Sketcher::SketchObject", "Sketch013")
body.addObject(sketch14)
sketch14.AttachmentSupport = (doc.XY_Plane, [""])
sketch14.MapMode = "FlatFace"
sketch14.AttachmentOffset = App.Placement(Vector(0, 0, -100), App.Rotation())
sketch14.addGeometry(Part.Circle(Vector(-65.3, 8.1, 0), Vector(0, 0, 1), 3.5), False)
sketch14.addConstraint(Sketcher.Constraint("Diameter", 0, 7.0))
sketch14.addConstraint(Sketcher.Constraint("DistanceY", -1, 1, 0, 3, 8.1))
sketch14.addConstraint(Sketcher.Constraint("DistanceX", 0, 3, -1, 1, 65.34))
pocket7 = doc.addObject("PartDesign::Pocket", "Pocket006")
body.addObject(pocket7)
pocket7.Profile = sketch14
pocket7.Type = "UpToFirst"
pocket7.Reversed = True

# Sketch on XY plane
sketch15 = doc.addObject("Sketcher::SketchObject", "Sketch014")
body.addObject(sketch15)
sketch15.AttachmentSupport = (doc.XY_Plane, [""])
sketch15.MapMode = "FlatFace"
sketch15.AttachmentOffset = App.Placement(Vector(0, 0, -100), App.Rotation())
sketch15.addGeometry(Part.Circle(Vector(32.7, 8.1, 0), Vector(0, 0, 1), 3.5), False)
sketch15.addConstraint(Sketcher.Constraint("Diameter", 0, 7.0))
sketch15.addConstraint(Sketcher.Constraint("DistanceY", -1, 1, 0, 3, 8.1))
sketch15.addConstraint(Sketcher.Constraint("DistanceX", -1, 1, 0, 3, 32.67))
pocket8 = doc.addObject("PartDesign::Pocket", "Pocket007")
body.addObject(pocket8)
pocket8.Profile = sketch15
pocket8.Type = "UpToFirst"
pocket8.Reversed = True

# Sketch on XY plane
sketch16 = doc.addObject("Sketcher::SketchObject", "Sketch015")
body.addObject(sketch16)
sketch16.AttachmentSupport = (doc.XY_Plane, [""])
sketch16.MapMode = "FlatFace"
sketch16.AttachmentOffset = App.Placement(Vector(0, 0, -100), App.Rotation())
sketch16.addGeometry(Part.Circle(Vector(65.3, 8.1, 0), Vector(0, 0, 1), 3.5), False)
sketch16.addConstraint(Sketcher.Constraint("Diameter", 0, 7.0))
sketch16.addConstraint(Sketcher.Constraint("DistanceY", -1, 1, 0, 3, 8.1))
sketch16.addConstraint(Sketcher.Constraint("DistanceX", -1, 1, 0, 3, 65.34))
pocket9 = doc.addObject("PartDesign::Pocket", "Pocket008")
body.addObject(pocket9)
pocket9.Profile = sketch16
pocket9.Type = "UpToFirst"
pocket9.Reversed = True

# Sketch on XY plane
sketch17 = doc.addObject("Sketcher::SketchObject", "Sketch016")
body.addObject(sketch17)
sketch17.AttachmentSupport = (doc.XY_Plane, [""])
sketch17.MapMode = "FlatFace"
sketch17.AttachmentOffset = App.Placement(Vector(0, 0, 100), App.Rotation())
sketch17.addGeometry(Part.LineSegment(Vector(-38.2, 4.2, 0), Vector(-52, 4.2, 0)), False)
sketch17.addGeometry(Part.ArcOfCircle(Part.Circle(Vector(-52, 0.8, 0), Vector(0, 0, 1), 3.4), math.radians(90), math.radians(190)), False)
sketch17.addGeometry(Part.LineSegment(Vector(-55.3, 0.2, 0), Vector(-54.5, -4.4, 0)), False)
sketch17.addGeometry(Part.ArcOfCircle(Part.Circle(Vector(-51.2, -3.8, 0), Vector(0, 0, 1), 3.4), math.radians(-170), math.radians(-90)), False)
sketch17.addGeometry(Part.LineSegment(Vector(-51.2, -7.2, 0), Vector(-39, -7.2, 0)), False)
sketch17.addGeometry(Part.ArcOfCircle(Part.Circle(Vector(-39, -3.8, 0), Vector(0, 0, 1), 3.4), math.radians(-90), math.radians(-10)), False)
sketch17.addGeometry(Part.LineSegment(Vector(-35.7, -4.4, 0), Vector(-34.9, 0.2, 0)), False)
sketch17.addGeometry(Part.ArcOfCircle(Part.Circle(Vector(-38.2, 0.8, 0), Vector(0, 0, 1), 3.4), math.radians(-10), math.radians(90)), False)
sketch17.addGeometry(Part.LineSegment(Vector(15.5, 0.2, 0), Vector(16.3, -4.4, 0)), False)
sketch17.addGeometry(Part.ArcOfCircle(Part.Circle(Vector(19.6, -3.8, 0), Vector(0, 0, 1), 3.4), math.radians(-170), math.radians(-90)), False)
sketch17.addGeometry(Part.LineSegment(Vector(19.6, -7.2, 0), Vector(70.4, -7.2, 0)), False)
sketch17.addGeometry(Part.ArcOfCircle(Part.Circle(Vector(70.4, -3.8, 0), Vector(0, 0, 1), 3.4), math.radians(-90), math.radians(-10)), False)
sketch17.addGeometry(Part.LineSegment(Vector(73.7, -4.4, 0), Vector(74.5, 0.2, 0)), False)
sketch17.addGeometry(Part.ArcOfCircle(Part.Circle(Vector(71.2, 0.8, 0), Vector(0, 0, 1), 3.4), math.radians(-10), math.radians(90)), False)
sketch17.addGeometry(Part.LineSegment(Vector(71.2, 4.2, 0), Vector(18.8, 4.2, 0)), False)
sketch17.addGeometry(Part.ArcOfCircle(Part.Circle(Vector(18.8, 0.8, 0), Vector(0, 0, 1), 3.4), math.radians(90), math.radians(190)), False)
sketch17.addConstraint(Sketcher.Constraint("Tangent", 0, 2, 1, 1))
sketch17.addConstraint(Sketcher.Constraint("Tangent", 1, 2, 2, 1))
sketch17.addConstraint(Sketcher.Constraint("Tangent", 2, 2, 3, 1))
sketch17.addConstraint(Sketcher.Constraint("Tangent", 3, 2, 4, 1))
sketch17.addConstraint(Sketcher.Constraint("Tangent", 4, 2, 5, 1))
sketch17.addConstraint(Sketcher.Constraint("Tangent", 5, 2, 6, 1))
sketch17.addConstraint(Sketcher.Constraint("Tangent", 6, 2, 7, 1))
sketch17.addConstraint(Sketcher.Constraint("Tangent", 7, 2, 0, 1))
sketch17.addConstraint(Sketcher.Constraint("Tangent", 8, 2, 9, 1))
sketch17.addConstraint(Sketcher.Constraint("Tangent", 9, 2, 10, 1))
sketch17.addConstraint(Sketcher.Constraint("Tangent", 10, 2, 11, 1))
sketch17.addConstraint(Sketcher.Constraint("Tangent", 11, 2, 12, 1))
sketch17.addConstraint(Sketcher.Constraint("Tangent", 12, 2, 13, 1))
sketch17.addConstraint(Sketcher.Constraint("Tangent", 13, 2, 14, 1))
sketch17.addConstraint(Sketcher.Constraint("Tangent", 14, 2, 15, 1))
sketch17.addConstraint(Sketcher.Constraint("Tangent", 15, 2, 8, 1))
sketch17.addConstraint(Sketcher.Constraint("Horizontal", 0))
sketch17.addConstraint(Sketcher.Constraint("Horizontal", 4))
sketch17.addConstraint(Sketcher.Constraint("Horizontal", 10))
sketch17.addConstraint(Sketcher.Constraint("Horizontal", 14))
sketch17.addConstraint(Sketcher.Constraint("Equal", 1, 3))
sketch17.addConstraint(Sketcher.Constraint("Equal", 3, 5))
sketch17.addConstraint(Sketcher.Constraint("Equal", 5, 7))
sketch17.addConstraint(Sketcher.Constraint("Equal", 7, 9))
sketch17.addConstraint(Sketcher.Constraint("Equal", 9, 11))
sketch17.addConstraint(Sketcher.Constraint("Equal", 11, 13))
sketch17.addConstraint(Sketcher.Constraint("Equal", 13, 15))
sketch17.addConstraint(Sketcher.Constraint("Parallel", 2, 8))
sketch17.addConstraint(Sketcher.Constraint("Parallel", 6, 12))
sketch17.addConstraint(Sketcher.Constraint("Horizontal", 5, 3, 9, 3))
sketch17.addConstraint(Sketcher.Constraint("Horizontal", 7, 3, 13, 3))
sketch17.addConstraint(Sketcher.Constraint("Horizontal", 2, 2, 5, 2))
sketch17.addConstraint(Sketcher.Constraint("Radius", 1, 3.4))
sketch17.addConstraint(Sketcher.Constraint("Angle", 2, Q("-80 deg")))
sketch17.addConstraint(Sketcher.Constraint("DistanceY", 3, 3, 0, 2, 8.0))
sketch17.addConstraint(Sketcher.Constraint("DistanceY", -1, 1, 1, 3, 0.83))
sketch17.addConstraint(Sketcher.Constraint("DistanceX", -1, 1, 12, 2, 74.54))
sketch17.addConstraint(Sketcher.Constraint("DistanceX", -1, 1, 15, 2, 15.46))
sketch17.addConstraint(Sketcher.Constraint("DistanceX", 4, 1, 4, 2, 12.151099))
sketch17.addConstraint(Sketcher.Constraint("DistanceX", 1, 2, -1, 1, 55.325))
pocket10 = doc.addObject("PartDesign::Pocket", "Pocket009")
body.addObject(pocket10)
pocket10.Profile = sketch17
pocket10.Length = 10

# Sketch on XY plane
sketch18 = doc.addObject("Sketcher::SketchObject", "Sketch017")
body.addObject(sketch18)
sketch18.AttachmentSupport = (doc.XY_Plane, [""])
sketch18.MapMode = "FlatFace"
sketch18.AttachmentOffset = App.Placement(Vector(0, 0, 100), App.Rotation())
sketch18.addGeometry(Part.Circle(Vector(-57.6, -1.5, 0), Vector(0, 0, 1), 1.2), False)
sketch18.addGeometry(Part.Circle(Vector(-32.6, -1.5, 0), Vector(0, 0, 1), 1.2), False)
sketch18.addGeometry(Part.Circle(Vector(13.2, -1.5, 0), Vector(0, 0, 1), 1.2), False)
sketch18.addGeometry(Part.Circle(Vector(76.8, -1.5, 0), Vector(0, 0, 1), 1.2), False)
sketch18.addConstraint(Sketcher.Constraint("Equal", 0, 1))
sketch18.addConstraint(Sketcher.Constraint("Equal", 1, 2))
sketch18.addConstraint(Sketcher.Constraint("Equal", 2, 3))
sketch18.addConstraint(Sketcher.Constraint("Horizontal", 0, 3, 1, 3))
sketch18.addConstraint(Sketcher.Constraint("Horizontal", 1, 3, 2, 3))
sketch18.addConstraint(Sketcher.Constraint("Horizontal", 2, 3, 3, 3))
sketch18.addConstraint(Sketcher.Constraint("Diameter", 0, 2.5))
sketch18.addConstraint(Sketcher.Constraint("DistanceX", 2, 3, 3, 3, 63.5))
sketch18.addConstraint(Sketcher.Constraint("DistanceY", 0, 3, -1, 1, 1.47))
sketch18.addConstraint(Sketcher.Constraint("DistanceX", -1, 1, 2, 3, 13.25))
sketch18.addConstraint(Sketcher.Constraint("DistanceX", 0, 3, 1, 3, 24.99))
sketch18.addConstraint(Sketcher.Constraint("DistanceX", 0, 3, -1, 1, 57.585))
doc.recompute()
hole6 = doc.addObject("PartDesign::Hole", "Hole005")
body.addObject(hole6)
hole6.Profile = sketch18
hole6.ThreadType = "None"
hole6.Diameter = 2.5
hole6.DepthType = "Dimension"
hole6.Depth = 5
hole6.DrillPoint = "Angled"
hole6.DrillPointAngle = 118

doc.recompute()
